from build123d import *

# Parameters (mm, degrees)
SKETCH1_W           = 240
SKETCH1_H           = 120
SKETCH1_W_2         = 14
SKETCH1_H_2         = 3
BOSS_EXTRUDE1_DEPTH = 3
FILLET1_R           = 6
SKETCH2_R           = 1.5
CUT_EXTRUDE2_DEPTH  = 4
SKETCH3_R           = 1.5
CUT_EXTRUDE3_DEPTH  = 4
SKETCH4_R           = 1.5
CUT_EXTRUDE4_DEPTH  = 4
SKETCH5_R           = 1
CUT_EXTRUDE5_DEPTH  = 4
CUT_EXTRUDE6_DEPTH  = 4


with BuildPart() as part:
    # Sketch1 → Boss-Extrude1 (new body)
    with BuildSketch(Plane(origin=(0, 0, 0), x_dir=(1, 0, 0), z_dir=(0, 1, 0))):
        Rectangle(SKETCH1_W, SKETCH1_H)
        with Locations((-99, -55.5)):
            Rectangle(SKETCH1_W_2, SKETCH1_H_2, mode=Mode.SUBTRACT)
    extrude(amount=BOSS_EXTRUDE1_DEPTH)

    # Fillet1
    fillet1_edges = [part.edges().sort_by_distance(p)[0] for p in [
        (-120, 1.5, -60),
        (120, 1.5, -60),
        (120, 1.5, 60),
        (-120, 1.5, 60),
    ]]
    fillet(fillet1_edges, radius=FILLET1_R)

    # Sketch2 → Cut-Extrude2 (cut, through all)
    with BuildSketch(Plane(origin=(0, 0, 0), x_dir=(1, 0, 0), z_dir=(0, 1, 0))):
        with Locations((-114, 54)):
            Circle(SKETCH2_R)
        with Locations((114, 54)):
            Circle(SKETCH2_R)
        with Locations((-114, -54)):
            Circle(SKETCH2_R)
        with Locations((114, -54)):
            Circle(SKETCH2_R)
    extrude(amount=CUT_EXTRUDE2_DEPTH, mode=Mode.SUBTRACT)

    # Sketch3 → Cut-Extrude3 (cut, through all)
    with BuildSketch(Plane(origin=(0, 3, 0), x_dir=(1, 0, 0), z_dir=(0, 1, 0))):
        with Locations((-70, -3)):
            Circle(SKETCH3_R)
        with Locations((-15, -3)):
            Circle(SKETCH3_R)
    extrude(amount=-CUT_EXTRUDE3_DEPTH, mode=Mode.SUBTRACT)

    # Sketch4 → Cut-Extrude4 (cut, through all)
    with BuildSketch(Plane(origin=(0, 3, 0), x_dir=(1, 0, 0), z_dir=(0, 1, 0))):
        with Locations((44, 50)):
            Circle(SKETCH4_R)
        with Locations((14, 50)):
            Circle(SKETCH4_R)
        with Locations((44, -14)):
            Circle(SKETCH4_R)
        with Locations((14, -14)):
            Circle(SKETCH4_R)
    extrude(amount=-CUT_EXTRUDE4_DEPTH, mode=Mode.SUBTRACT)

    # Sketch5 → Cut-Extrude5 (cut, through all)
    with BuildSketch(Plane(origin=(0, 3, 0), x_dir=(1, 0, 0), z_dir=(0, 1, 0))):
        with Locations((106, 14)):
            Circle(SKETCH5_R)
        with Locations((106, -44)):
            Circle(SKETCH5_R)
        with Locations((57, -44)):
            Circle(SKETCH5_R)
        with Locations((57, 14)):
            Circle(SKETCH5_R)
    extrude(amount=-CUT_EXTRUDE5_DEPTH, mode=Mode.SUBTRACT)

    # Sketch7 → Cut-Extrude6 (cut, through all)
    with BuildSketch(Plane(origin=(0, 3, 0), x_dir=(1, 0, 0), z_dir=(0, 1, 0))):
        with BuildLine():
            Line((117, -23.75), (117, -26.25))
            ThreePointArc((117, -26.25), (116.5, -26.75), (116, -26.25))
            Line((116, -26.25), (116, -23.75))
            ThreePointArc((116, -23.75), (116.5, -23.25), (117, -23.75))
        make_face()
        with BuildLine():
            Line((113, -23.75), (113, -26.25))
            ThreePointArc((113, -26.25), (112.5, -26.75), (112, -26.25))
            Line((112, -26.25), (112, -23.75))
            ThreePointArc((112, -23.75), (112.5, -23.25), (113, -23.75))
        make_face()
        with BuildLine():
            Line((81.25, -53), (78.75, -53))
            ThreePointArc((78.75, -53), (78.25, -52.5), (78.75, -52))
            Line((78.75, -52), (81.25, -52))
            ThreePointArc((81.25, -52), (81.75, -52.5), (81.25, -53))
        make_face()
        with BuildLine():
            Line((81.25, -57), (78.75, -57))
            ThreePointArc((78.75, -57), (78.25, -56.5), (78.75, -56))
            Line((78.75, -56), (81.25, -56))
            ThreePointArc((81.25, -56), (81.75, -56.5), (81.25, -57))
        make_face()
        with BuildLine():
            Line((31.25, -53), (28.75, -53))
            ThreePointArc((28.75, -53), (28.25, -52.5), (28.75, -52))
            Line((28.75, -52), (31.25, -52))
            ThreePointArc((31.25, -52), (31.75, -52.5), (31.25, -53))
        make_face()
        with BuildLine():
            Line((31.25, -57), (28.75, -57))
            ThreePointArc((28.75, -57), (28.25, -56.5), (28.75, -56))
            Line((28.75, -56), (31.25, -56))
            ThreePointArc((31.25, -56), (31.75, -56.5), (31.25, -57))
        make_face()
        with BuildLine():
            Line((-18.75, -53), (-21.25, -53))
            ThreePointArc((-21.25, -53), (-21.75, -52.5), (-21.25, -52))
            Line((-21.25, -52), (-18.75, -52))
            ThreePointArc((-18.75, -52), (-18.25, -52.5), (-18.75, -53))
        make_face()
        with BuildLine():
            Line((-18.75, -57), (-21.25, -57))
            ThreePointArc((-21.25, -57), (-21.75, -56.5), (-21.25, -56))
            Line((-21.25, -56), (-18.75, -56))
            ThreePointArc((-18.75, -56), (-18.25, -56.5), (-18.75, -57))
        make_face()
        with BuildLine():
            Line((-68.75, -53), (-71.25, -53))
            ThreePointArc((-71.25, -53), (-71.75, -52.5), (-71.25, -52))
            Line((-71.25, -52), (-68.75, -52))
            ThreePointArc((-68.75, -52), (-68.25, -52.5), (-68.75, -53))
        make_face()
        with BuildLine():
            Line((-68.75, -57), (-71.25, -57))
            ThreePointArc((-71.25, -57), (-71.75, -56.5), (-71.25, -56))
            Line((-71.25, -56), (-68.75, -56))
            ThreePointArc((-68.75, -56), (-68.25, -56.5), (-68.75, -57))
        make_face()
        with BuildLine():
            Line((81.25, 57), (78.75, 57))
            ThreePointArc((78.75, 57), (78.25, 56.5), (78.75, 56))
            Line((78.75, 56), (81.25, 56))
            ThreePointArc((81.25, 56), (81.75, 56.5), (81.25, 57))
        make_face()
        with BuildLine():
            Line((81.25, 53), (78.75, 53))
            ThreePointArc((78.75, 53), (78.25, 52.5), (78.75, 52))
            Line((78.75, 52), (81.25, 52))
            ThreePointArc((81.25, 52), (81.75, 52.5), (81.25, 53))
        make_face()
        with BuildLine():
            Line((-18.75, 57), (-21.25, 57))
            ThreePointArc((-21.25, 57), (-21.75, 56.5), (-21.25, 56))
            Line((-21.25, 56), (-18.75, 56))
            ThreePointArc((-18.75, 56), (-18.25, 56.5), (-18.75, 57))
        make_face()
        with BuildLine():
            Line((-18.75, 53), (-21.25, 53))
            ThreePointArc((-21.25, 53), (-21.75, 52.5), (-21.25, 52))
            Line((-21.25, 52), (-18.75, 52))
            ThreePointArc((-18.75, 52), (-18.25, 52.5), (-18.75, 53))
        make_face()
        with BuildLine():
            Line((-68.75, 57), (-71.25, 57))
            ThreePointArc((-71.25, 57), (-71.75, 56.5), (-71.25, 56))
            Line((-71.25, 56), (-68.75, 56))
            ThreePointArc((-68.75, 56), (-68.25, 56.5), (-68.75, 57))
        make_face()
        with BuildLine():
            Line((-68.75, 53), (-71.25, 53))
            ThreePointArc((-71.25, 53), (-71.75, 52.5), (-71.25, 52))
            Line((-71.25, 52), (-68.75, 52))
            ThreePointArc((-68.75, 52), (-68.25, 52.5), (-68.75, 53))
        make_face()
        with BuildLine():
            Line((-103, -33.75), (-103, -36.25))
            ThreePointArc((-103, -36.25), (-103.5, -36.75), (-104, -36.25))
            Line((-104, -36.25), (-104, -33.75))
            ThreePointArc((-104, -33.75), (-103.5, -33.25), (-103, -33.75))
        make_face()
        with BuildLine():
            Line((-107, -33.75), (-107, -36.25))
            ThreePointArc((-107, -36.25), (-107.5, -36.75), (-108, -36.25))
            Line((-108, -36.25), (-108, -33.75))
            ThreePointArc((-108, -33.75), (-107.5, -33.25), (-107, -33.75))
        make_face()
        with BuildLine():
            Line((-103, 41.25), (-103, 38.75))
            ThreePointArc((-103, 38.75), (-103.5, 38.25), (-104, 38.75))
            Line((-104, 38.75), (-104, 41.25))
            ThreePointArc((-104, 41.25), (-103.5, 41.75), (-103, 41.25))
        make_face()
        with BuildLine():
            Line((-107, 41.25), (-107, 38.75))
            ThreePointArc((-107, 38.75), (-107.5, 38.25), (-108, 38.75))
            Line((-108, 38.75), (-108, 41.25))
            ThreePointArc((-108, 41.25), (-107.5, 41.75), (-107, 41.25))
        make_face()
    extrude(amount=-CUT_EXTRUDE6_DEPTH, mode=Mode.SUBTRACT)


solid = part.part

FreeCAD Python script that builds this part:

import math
import FreeCAD as App
import Part
import Sketcher
from FreeCAD import Vector
Q = App.Units.Quantity


def edges_at(feature, points):
    """Names of the edges that pass closest to the given points."""
    edges = feature.Shape.Edges
    near = lambda p: min(range(len(edges)), key=lambda i: edges[i].distToShape(Part.Vertex(*p))[0])
    return sorted({f"Edge{near(p) + 1}" for p in points})

doc = App.newDocument("Part")
params = doc.addObject("Spreadsheet::Sheet", "Params")
for row, (alias, value) in enumerate([
    ("sketch1_width", "240 mm"),
    ("sketch1_width2", "14 mm"),
    ("sketch1_height", "120 mm"),
    ("sketch1_height2", "3 mm"),
    ("pad1_length", "3 mm"),
    ("fillet_radius", "6 mm"),
    ("sketch2_diameter", "3 mm"),
    ("sketch3_diameter", "3 mm"),
    ("sketch4_diameter", "3 mm"),
    ("sketch5_diameter", "2 mm"),
    ("sketch6_radius", "0.5 mm"),
    ("sketch6_width", "2.5 mm"),
], start=1):
    params.set(f"A{row}", alias)
    params.set(f"B{row}", "=" + value)
    params.setAlias(f"B{row}", alias)

body = doc.addObject("PartDesign::Body", "Body")

# Sketch on XZ plane
sketch1 = doc.addObject("Sketcher::SketchObject", "Sketch")
body.addObject(sketch1)
sketch1.AttachmentSupport = (doc.XZ_Plane, [""])
sketch1.MapMode = "FlatFace"
sketch1.addGeometry(Part.LineSegment(Vector(-120, -60, 0), Vector(-120, 60, 0)), False)
sketch1.addGeometry(Part.LineSegment(Vector(-120, 60, 0), Vector(120, 60, 0)), False)
sketch1.addGeometry(Part.LineSegment(Vector(120, 60, 0), Vector(120, -60, 0)), False)
sketch1.addGeometry(Part.LineSegment(Vector(120, -60, 0), Vector(-120, -60, 0)), False)
sketch1.addGeometry(Part.LineSegment(Vector(-92, 57, 0), Vector(-106, 57, 0)), False)
sketch1.addGeometry(Part.LineSegment(Vector(-106, 57, 0), Vector(-106, 54, 0)), False)
sketch1.addGeometry(Part.LineSegment(Vector(-106, 54, 0), Vector(-92, 54, 0)), False)
sketch1.addGeometry(Part.LineSegment(Vector(-92, 54, 0), Vector(-92, 57, 0)), False)
sketch1.addConstraint(Sketcher.Constraint("Coincident", 0, 2, 1, 1))
sketch1.addConstraint(Sketcher.Constraint("Coincident", 1, 2, 2, 1))
sketch1.addConstraint(Sketcher.Constraint("Coincident", 2, 2, 3, 1))
sketch1.addConstraint(Sketcher.Constraint("Coincident", 3, 2, 0, 1))
sketch1.addConstraint(Sketcher.Constraint("Coincident", 4, 2, 5, 1))
sketch1.addConstraint(Sketcher.Constraint("Coincident", 5, 2, 6, 1))
sketch1.addConstraint(Sketcher.Constraint("Coincident", 6, 2, 7, 1))
sketch1.addConstraint(Sketcher.Constraint("Coincident", 7, 2, 4, 1))
sketch1.addConstraint(Sketcher.Constraint("Vertical", 0))
sketch1.addConstraint(Sketcher.Constraint("Horizontal", 1))
sketch1.addConstraint(Sketcher.Constraint("Vertical", 2))
sketch1.addConstraint(Sketcher.Constraint("Horizontal", 3))
sketch1.addConstraint(Sketcher.Constraint("Horizontal", 4))
sketch1.addConstraint(Sketcher.Constraint("Vertical", 5))
sketch1.addConstraint(Sketcher.Constraint("Horizontal", 6))
sketch1.addConstraint(Sketcher.Constraint("Vertical", 7))
sketch1.addConstraint(Sketcher.Constraint("Symmetric", 0, 2, 2, 2, -1, 1))
sketch1.addConstraint(Sketcher.Constraint("DistanceX", 1, 1, 1, 2, Q("240 mm")))
sketch1.addConstraint(Sketcher.Constraint("DistanceX", 4, 2, 4, 1, Q("14 mm")))
sketch1.addConstraint(Sketcher.Constraint("DistanceY", 0, 1, 0, 2, Q("120 mm")))
sketch1.addConstraint(Sketcher.Constraint("DistanceY", 5, 2, 5, 1, Q("3 mm")))
sketch1.addConstraint(Sketcher.Constraint("DistanceX", 4, 2, -1, 1, Q("106 mm")))
sketch1.addConstraint(Sketcher.Constraint("DistanceY", -1, 1, 4, 2, Q("57 mm")))
sketch1.setExpression("Constraints[17]", "Params.sketch1_width")
sketch1.setExpression("Constraints[18]", "Params.sketch1_width2")
sketch1.setExpression("Constraints[19]", "Params.sketch1_height")
sketch1.setExpression("Constraints[20]", "Params.sketch1_height2")
pad1 = doc.addObject("PartDesign::Pad", "Pad")
body.addObject(pad1)
pad1.Profile = sketch1
pad1.setExpression("Length", "Params.pad1_length")
pad1.Reversed = True
doc.recompute()

fillet = doc.addObject("PartDesign::Fillet", "Fillet")
body.addObject(fillet)
fillet.Base = (pad1, edges_at(pad1, [
    (-120, 1.5, -60),
    (120, 1.5, -60),
    (120, 1.5, 60),
    (-120, 1.5, 60),
]))
fillet.setExpression("Radius", "Params.fillet_radius")

# Sketch on XZ plane
sketch2 = doc.addObject("Sketcher::SketchObject", "Sketch001")
body.addObject(sketch2)
sketch2.AttachmentSupport = (doc.XZ_Plane, [""])
sketch2.MapMode = "FlatFace"
sketch2.addGeometry(Part.Circle(Vector(-114, -54, 0), Vector(0, 0, 1), 1.5), False)
sketch2.addGeometry(Part.Circle(Vector(114, -54, 0), Vector(0, 0, 1), 1.5), False)
sketch2.addGeometry(Part.Circle(Vector(-114, 54, 0), Vector(0, 0, 1), 1.5), False)
sketch2.addGeometry(Part.Circle(Vector(114, 54, 0), Vector(0, 0, 1), 1.5), False)
sketch2.addConstraint(Sketcher.Constraint("Equal", 0, 1))
sketch2.addConstraint(Sketcher.Constraint("Equal", 1, 2))
sketch2.addConstraint(Sketcher.Constraint("Equal", 2, 3))
sketch2.addConstraint(Sketcher.Constraint("Symmetric", 1, 3, 2, 3, -1, 1))
sketch2.addConstraint(Sketcher.Constraint("Symmetric", 0, 3, 3, 3, -1, 1))
sketch2.addConstraint(Sketcher.Constraint("Symmetric", 0, 3, 1, 3, -2))
sketch2.addConstraint(Sketcher.Constraint("Diameter", 0, Q("3 mm")))
sketch2.addConstraint(Sketcher.Constraint("DistanceX", 0, 3, -1, 1, Q("114 mm")))
sketch2.addConstraint(Sketcher.Constraint("DistanceY", 0, 3, -1, 1, Q("54 mm")))
sketch2.setExpression("Constraints[6]", "Params.sketch2_diameter")
pocket1 = doc.addObject("PartDesign::Pocket", "Pocket")
body.addObject(pocket1)
pocket1.Profile = sketch2
pocket1.Type = "ThroughAll"

# Sketch on XZ plane
sketch3 = doc.addObject("Sketcher::SketchObject", "Sketch002")
body.addObject(sketch3)
sketch3.AttachmentSupport = (doc.XZ_Plane, [""])
sketch3.MapMode = "FlatFace"
sketch3.AttachmentOffset = App.Placement(Vector(0, 0, -3), App.Rotation())
sketch3.addGeometry(Part.Circle(Vector(-70, 3, 0), Vector(0, 0, 1), 1.5), False)
sketch3.addGeometry(Part.Circle(Vector(-15, 3, 0), Vector(0, 0, 1), 1.5), False)
sketch3.addConstraint(Sketcher.Constraint("Equal", 0, 1))
sketch3.addConstraint(Sketcher.Constraint("Horizontal", 0, 3, 1, 3))
sketch3.addConstraint(Sketcher.Constraint("Diameter", 0, Q("3 mm")))
sketch3.addConstraint(Sketcher.Constraint("DistanceX", 0, 3, -1, 1, Q("70 mm")))
sketch3.addConstraint(Sketcher.Constraint("DistanceY", -1, 1, 0, 3, Q("3 mm")))
sketch3.addConstraint(Sketcher.Constraint("DistanceX", 1, 3, -1, 1, Q("15 mm")))
sketch3.setExpression("Constraints[2]", "Params.sketch3_diameter")
pocket2 = doc.addObject("PartDesign::Pocket", "Pocket001")
body.addObject(pocket2)
pocket2.Profile = sketch3
pocket2.Type = "ThroughAll"
pocket2.Reversed = True

# Sketch on XZ plane
sketch4 = doc.addObject("Sketcher::SketchObject", "Sketch003")
body.addObject(sketch4)
sketch4.AttachmentSupport = (doc.XZ_Plane, [""])
sketch4.MapMode = "FlatFace"
sketch4.AttachmentOffset = App.Placement(Vector(0, 0, -3), App.Rotation())
sketch4.addGeometry(Part.Circle(Vector(44, -50, 0), Vector(0, 0, 1), 1.5), False)
sketch4.addGeometry(Part.Circle(Vector(14, -50, 0), Vector(0, 0, 1), 1.5), False)
sketch4.addGeometry(Part.Circle(Vector(44, 14, 0), Vector(0, 0, 1), 1.5), False)
sketch4.addGeometry(Part.Circle(Vector(14, 14, 0), Vector(0, 0, 1), 1.5), False)
sketch4.addConstraint(Sketcher.Constraint("Equal", 0, 1))
sketch4.addConstraint(Sketcher.Constraint("Equal", 1, 2))
sketch4.addConstraint(Sketcher.Constraint("Equal", 2, 3))
sketch4.addConstraint(Sketcher.Constraint("Horizontal", 0, 3, 1, 3))
sketch4.addConstraint(Sketcher.Constraint("Horizontal", 2, 3, 3, 3))
sketch4.addConstraint(Sketcher.Constraint("Vertical", 0, 3, 2, 3))
sketch4.addConstraint(Sketcher.Constraint("Vertical", 1, 3, 3, 3))
sketch4.addConstraint(Sketcher.Constraint("Diameter", 0, Q("3 mm")))
sketch4.addConstraint(Sketcher.Constraint("DistanceX", -1, 1, 0, 3, Q("44 mm")))
sketch4.addConstraint(Sketcher.Constraint("DistanceY", 0, 3, -1, 1, Q("50 mm")))
sketch4.addConstraint(Sketcher.Constraint("DistanceX", -1, 1, 1, 3, Q("14 mm")))
sketch4.addConstraint(Sketcher.Constraint("DistanceY", -1, 1, 2, 3, Q("14 mm")))
sketch4.setExpression("Constraints[7]", "Params.sketch4_diameter")
pocket3 = doc.addObject("PartDesign::Pocket", "Pocket002")
body.addObject(pocket3)
pocket3.Profile = sketch4
pocket3.Type = "ThroughAll"
pocket3.Reversed = True

# Sketch on XZ plane
sketch5 = doc.addObject("Sketcher::SketchObject", "Sketch004")
body.addObject(sketch5)
sketch5.AttachmentSupport = (doc.XZ_Plane, [""])
sketch5.MapMode = "FlatFace"
sketch5.AttachmentOffset = App.Placement(Vector(0, 0, -3), App.Rotation())
sketch5.addGeometry(Part.Circle(Vector(106, -14, 0), Vector(0, 0, 1), 1), False)
sketch5.addGeometry(Part.Circle(Vector(106, 44, 0), Vector(0, 0, 1), 1), False)
sketch5.addGeometry(Part.Circle(Vector(57, 44, 0), Vector(0, 0, 1), 1), False)
sketch5.addGeometry(Part.Circle(Vector(57, -14, 0), Vector(0, 0, 1), 1), False)
sketch5.addConstraint(Sketcher.Constraint("Equal", 0, 1))
sketch5.addConstraint(Sketcher.Constraint("Equal", 1, 2))
sketch5.addConstraint(Sketcher.Constraint("Equal", 2, 3))
sketch5.addConstraint(Sketcher.Constraint("Horizontal", 1, 3, 2, 3))
sketch5.addConstraint(Sketcher.Constraint("Horizontal", 0, 3, 3, 3))
sketch5.addConstraint(Sketcher.Constraint("Vertical", 0, 3, 1, 3))
sketch5.addConstraint(Sketcher.Constraint("Vertical", 2, 3, 3, 3))
sketch5.addConstraint(Sketcher.Constraint("Diameter", 0, Q("2 mm")))
sketch5.addConstraint(Sketcher.Constraint("DistanceX", -1, 1, 0, 3, Q("106 mm")))
sketch5.addConstraint(Sketcher.Constraint("DistanceY", 0, 3, -1, 1, Q("14 mm")))
sketch5.addConstraint(Sketcher.Constraint("DistanceY", -1, 1, 1, 3, Q("44 mm")))
sketch5.addConstraint(Sketcher.Constraint("DistanceX", -1, 1, 2, 3, Q("57 mm")))
sketch5.setExpression("Constraints[7]", "Params.sketch5_diameter")
pocket4 = doc.addObject("PartDesign::Pocket", "Pocket003")
body.addObject(pocket4)
pocket4.Profile = sketch5
pocket4.Type = "ThroughAll"
pocket4.Reversed = True

# Sketch on XZ plane
sketch6 = doc.addObject("Sketcher::SketchObject", "Sketch005")
body.addObject(sketch6)
sketch6.AttachmentSupport = (doc.XZ_Plane, [""])
sketch6.MapMode = "FlatFace"
sketch6.AttachmentOffset = App.Placement(Vector(0, 0, -3), App.Rotation())
sketch6.addGeometry(Part.LineSegment(Vector(117, 26.2, 0), Vector(117, 23.8, 0)), False)
sketch6.addGeometry(Part.ArcOfCircle(Part.Circle(Vector(116.5, 23.8, 0), Vector(0, 0, 1), 0.5), math.radians(180), math.radians(360)), False)
sketch6.addGeometry(Part.LineSegment(Vector(116, 23.8, 0), Vector(116, 26.2, 0)), False)
sketch6.addGeometry(Part.ArcOfCircle(Part.Circle(Vector(116.5, 26.2, 0), Vector(0, 0, 1), 0.5), math.radians(0), math.radians(180)), False)
sketch6.addGeometry(Part.LineSegment(Vector(113, 26.2, 0), Vector(113, 23.8, 0)), False)
sketch6.addGeometry(Part.ArcOfCircle(Part.Circle(Vector(112.5, 23.8, 0), Vector(0, 0, 1), 0.5), math.radians(180), math.radians(360)), False)
sketch6.addGeometry(Part.LineSegment(Vector(112, 23.8, 0), Vector(112, 26.2, 0)), False)
sketch6.addGeometry(Part.ArcOfCircle(Part.Circle(Vector(112.5, 26.2, 0), Vector(0, 0, 1), 0.5), math.radians(0), math.radians(180)), False)
sketch6.addGeometry(Part.LineSegment(Vector(78.8, 53, 0), Vector(81.2, 53, 0)), False)
sketch6.addGeometry(Part.ArcOfCircle(Part.Circle(Vector(81.2, 52.5, 0), Vector(0, 0, 1), 0.5), math.radians(-90), math.radians(90)), False)
sketch6.addGeometry(Part.LineSegment(Vector(81.2, 52, 0), Vector(78.8, 52, 0)), False)
sketch6.addGeometry(Part.ArcOfCircle(Part.Circle(Vector(78.8, 52.5, 0), Vector(0, 0, 1), 0.5), math.radians(90), math.radians(270)), False)
sketch6.addGeometry(Part.LineSegment(Vector(78.8, 57, 0), Vector(81.2, 57, 0)), False)
sketch6.addGeometry(Part.ArcOfCircle(Part.Circle(Vector(81.2, 56.5, 0), Vector(0, 0, 1), 0.5), math.radians(-90), math.radians(90)), False)
sketch6.addGeometry(Part.LineSegment(Vector(81.2, 56, 0), Vector(78.8, 56, 0)), False)
sketch6.addGeometry(Part.ArcOfCircle(Part.Circle(Vector(78.8, 56.5, 0), Vector(0, 0, 1), 0.5), math.radians(90), math.radians(270)), False)
sketch6.addGeometry(Part.LineSegment(Vector(28.8, 53, 0), Vector(31.2, 53, 0)), False)
sketch6.addGeometry(Part.ArcOfCircle(Part.Circle(Vector(31.2, 52.5, 0), Vector(0, 0, 1), 0.5), math.radians(-90), math.radians(90)), False)
sketch6.addGeometry(Part.LineSegment(Vector(31.2, 52, 0), Vector(28.8, 52, 0)), False)
sketch6.addGeometry(Part.ArcOfCircle(Part.Circle(Vector(28.8, 52.5, 0), Vector(0, 0, 1), 0.5), math.radians(90), math.radians(270)), False)
sketch6.addGeometry(Part.LineSegment(Vector(28.8, 57, 0), Vector(31.2, 57, 0)), False)
sketch6.addGeometry(Part.ArcOfCircle(Part.Circle(Vector(31.2, 56.5, 0), Vector(0, 0, 1), 0.5), math.radians(-90), math.radians(90)), False)
sketch6.addGeometry(Part.LineSegment(Vector(31.2, 56, 0), Vector(28.8, 56, 0)), False)
sketch6.addGeometry(Part.ArcOfCircle(Part.Circle(Vector(28.8, 56.5, 0), Vector(0, 0, 1), 0.5), math.radians(90), math.radians(270)), False)
sketch6.addGeometry(Part.LineSegment(Vector(-21.2, 53, 0), Vector(-18.8, 53, 0)), False)
sketch6.addGeometry(Part.ArcOfCircle(Part.Circle(Vector(-18.8, 52.5, 0), Vector(0, 0, 1), 0.5), math.radians(-90), math.radians(90)), False)
sketch6.addGeometry(Part.LineSegment(Vector(-18.8, 52, 0), Vector(-21.2, 52, 0)), False)
sketch6.addGeometry(Part.ArcOfCircle(Part.Circle(Vector(-21.2, 52.5, 0), Vector(0, 0, 1), 0.5), math.radians(90), math.radians(270)), False)
sketch6.addGeometry(Part.LineSegment(Vector(-21.2, 57, 0), Vector(-18.8, 57, 0)), False)
sketch6.addGeometry(Part.ArcOfCircle(Part.Circle(Vector(-18.8, 56.5, 0), Vector(0, 0, 1), 0.5), math.radians(-90), math.radians(90)), False)
sketch6.addGeometry(Part.LineSegment(Vector(-18.8, 56, 0), Vector(-21.2, 56, 0)), False)
sketch6.addGeometry(Part.ArcOfCircle(Part.Circle(Vector(-21.2, 56.5, 0), Vector(0, 0, 1), 0.5), math.radians(90), math.radians(270)), False)
sketch6.addGeometry(Part.LineSegment(Vector(-71.2, 53, 0), Vector(-68.8, 53, 0)), False)
sketch6.addGeometry(Part.ArcOfCircle(Part.Circle(Vector(-68.8, 52.5, 0), Vector(0, 0, 1), 0.5), math.radians(-90), math.radians(90)), False)
sketch6.addGeometry(Part.LineSegment(Vector(-68.8, 52, 0), Vector(-71.2, 52, 0)), False)
sketch6.addGeometry(Part.ArcOfCircle(Part.Circle(Vector(-71.2, 52.5, 0), Vector(0, 0, 1), 0.5), math.radians(90), math.radians(270)), False)
sketch6.addGeometry(Part.LineSegment(Vector(-71.2, 57, 0), Vector(-68.8, 57, 0)), False)
sketch6.addGeometry(Part.ArcOfCircle(Part.Circle(Vector(-68.8, 56.5, 0), Vector(0, 0, 1), 0.5), math.radians(-90), math.radians(90)), False)
sketch6.addGeometry(Part.LineSegment(Vector(-68.8, 56, 0), Vector(-71.2, 56, 0)), False)
sketch6.addGeometry(Part.ArcOfCircle(Part.Circle(Vector(-71.2, 56.5, 0), Vector(0, 0, 1), 0.5), math.radians(90), math.radians(270)), False)
sketch6.addGeometry(Part.LineSegment(Vector(81.2, -57, 0), Vector(78.8, -57, 0)), False)
sketch6.addGeometry(Part.ArcOfCircle(Part.Circle(Vector(78.8, -56.5, 0), Vector(0, 0, 1), 0.5), math.radians(90), math.radians(270)), False)
sketch6.addGeometry(Part.LineSegment(Vector(78.8, -56, 0), Vector(81.2, -56, 0)), False)
sketch6.addGeometry(Part.ArcOfCircle(Part.Circle(Vector(81.2, -56.5, 0), Vector(0, 0, 1), 0.5), math.radians(-90), math.radians(90)), False)
sketch6.addGeometry(Part.LineSegment(Vector(81.2, -53, 0), Vector(78.8, -53, 0)), False)
sketch6.addGeometry(Part.ArcOfCircle(Part.Circle(Vector(78.8, -52.5, 0), Vector(0, 0, 1), 0.5), math.radians(90), math.radians(270)), False)
sketch6.addGeometry(Part.LineSegment(Vector(78.8, -52, 0), Vector(81.2, -52, 0)), False)
sketch6.addGeometry(Part.ArcOfCircle(Part.Circle(Vector(81.2, -52.5, 0), Vector(0, 0, 1), 0.5), math.radians(-90), math.radians(90)), False)
sketch6.addGeometry(Part.LineSegment(Vector(-18.8, -57, 0), Vector(-21.2, -57, 0)), False)
sketch6.addGeometry(Part.ArcOfCircle(Part.Circle(Vector(-21.2, -56.5, 0), Vector(0, 0, 1), 0.5), math.radians(90), math.radians(270)), False)
sketch6.addGeometry(Part.LineSegment(Vector(-21.2, -56, 0), Vector(-18.8, -56, 0)), False)
sketch6.addGeometry(Part.ArcOfCircle(Part.Circle(Vector(-18.8, -56.5, 0), Vector(0, 0, 1), 0.5), math.radians(-90), math.radians(90)), False)
sketch6.addGeometry(Part.LineSegment(Vector(-18.8, -53, 0), Vector(-21.2, -53, 0)), False)
sketch6.addGeometry(Part.ArcOfCircle(Part.Circle(Vector(-21.2, -52.5, 0), Vector(0, 0, 1), 0.5), math.radians(90), math.radians(270)), False)
sketch6.addGeometry(Part.LineSegment(Vector(-21.2, -52, 0), Vector(-18.8, -52, 0)), False)
sketch6.addGeometry(Part.ArcOfCircle(Part.Circle(Vector(-18.8, -52.5, 0), Vector(0, 0, 1), 0.5), math.radians(-90), math.radians(90)), False)
sketch6.addGeometry(Part.LineSegment(Vector(-68.8, -57, 0), Vector(-71.2, -57, 0)), False)
sketch6.addGeometry(Part.ArcOfCircle(Part.Circle(Vector(-71.2, -56.5, 0), Vector(0, 0, 1), 0.5), math.radians(90), math.radians(270)), False)
sketch6.addGeometry(Part.LineSegment(Vector(-71.2, -56, 0), Vector(-68.8, -56, 0)), False)
sketch6.addGeometry(Part.ArcOfCircle(Part.Circle(Vector(-68.8, -56.5, 0), Vector(0, 0, 1), 0.5), math.radians(-90), math.radians(90)), False)
sketch6.addGeometry(Part.LineSegment(Vector(-68.8, -53, 0), Vector(-71.2, -53, 0)), False)
sketch6.addGeometry(Part.ArcOfCircle(Part.Circle(Vector(-71.2, -52.5, 0), Vector(0, 0, 1), 0.5), math.radians(90), math.radians(270)), False)
sketch6.addGeometry(Part.LineSegment(Vector(-71.2, -52, 0), Vector(-68.8, -52, 0)), False)
sketch6.addGeometry(Part.ArcOfCircle(Part.Circle(Vector(-68.8, -52.5, 0), Vector(0, 0, 1), 0.5), math.radians(-90), math.radians(90)), False)
sketch6.addGeometry(Part.LineSegment(Vector(-103, 36.2, 0), Vector(-103, 33.8, 0)), False)
sketch6.addGeometry(Part.ArcOfCircle(Part.Circle(Vector(-103.5, 33.8, 0), Vector(0, 0, 1), 0.5), math.radians(180), math.radians(360)), False)
sketch6.addGeometry(Part.LineSegment(Vector(-104, 33.8, 0), Vector(-104, 36.2, 0)), False)
sketch6.addGeometry(Part.ArcOfCircle(Part.Circle(Vector(-103.5, 36.2, 0), Vector(0, 0, 1), 0.5), math.radians(0), math.radians(180)), False)
sketch6.addGeometry(Part.LineSegment(Vector(-107, 36.2, 0), Vector(-107, 33.8, 0)), False)
sketch6.addGeometry(Part.ArcOfCircle(Part.Circle(Vector(-107.5, 33.8, 0), Vector(0, 0, 1), 0.5), math.radians(180), math.radians(360)), False)
sketch6.addGeometry(Part.LineSegment(Vector(-108, 33.8, 0), Vector(-108, 36.2, 0)), False)
sketch6.addGeometry(Part.ArcOfCircle(Part.Circle(Vector(-107.5, 36.2, 0), Vector(0, 0, 1), 0.5), math.radians(0), math.radians(180)), False)
sketch6.addGeometry(Part.LineSegment(Vector(-103, -38.8, 0), Vector(-103, -41.2, 0)), False)
sketch6.addGeometry(Part.ArcOfCircle(Part.Circle(Vector(-103.5, -41.2, 0), Vector(0, 0, 1), 0.5), math.radians(180), math.radians(360)), False)
sketch6.addGeometry(Part.LineSegment(Vector(-104, -41.2, 0), Vector(-104, -38.8, 0)), False)
sketch6.addGeometry(Part.ArcOfCircle(Part.Circle(Vector(-103.5, -38.8, 0), Vector(0, 0, 1), 0.5), math.radians(0), math.radians(180)), False)
sketch6.addGeometry(Part.LineSegment(Vector(-107, -38.8, 0), Vector(-107, -41.2, 0)), False)
sketch6.addGeometry(Part.ArcOfCircle(Part.Circle(Vector(-107.5, -41.2, 0), Vector(0, 0, 1), 0.5), math.radians(180), math.radians(360)), False)
sketch6.addGeometry(Part.LineSegment(Vector(-108, -41.2, 0), Vector(-108, -38.8, 0)), False)
sketch6.addGeometry(Part.ArcOfCircle(Part.Circle(Vector(-107.5, -38.8, 0), Vector(0, 0, 1), 0.5), math.radians(0), math.radians(180)), False)
sketch6.addConstraint(Sketcher.Constraint("Tangent", 0, 2, 1, 2))
sketch6.addConstraint(Sketcher.Constraint("Tangent", 1, 1, 2, 1))
sketch6.addConstraint(Sketcher.Constraint("Tangent", 2, 2, 3, 2))
sketch6.addConstraint(Sketcher.Constraint("Tangent", 3, 1, 0, 1))
sketch6.addConstraint(Sketcher.Constraint("Tangent", 4, 2, 5, 2))
sketch6.addConstraint(Sketcher.Constraint("Tangent", 5, 1, 6, 1))
sketch6.addConstraint(Sketcher.Constraint("Tangent", 6, 2, 7, 2))
sketch6.addConstraint(Sketcher.Constraint("Tangent", 7, 1, 4, 1))
sketch6.addConstraint(Sketcher.Constraint("Tangent", 8, 2, 9, 2))
sketch6.addConstraint(Sketcher.Constraint("Tangent", 9, 1, 10, 1))
sketch6.addConstraint(Sketcher.Constraint("Tangent", 10, 2, 11, 2))
sketch6.addConstraint(Sketcher.Constraint("Tangent", 11, 1, 8, 1))
sketch6.addConstraint(Sketcher.Constraint("Tangent", 12, 2, 13, 2))
sketch6.addConstraint(Sketcher.Constraint("Tangent", 13, 1, 14, 1))
sketch6.addConstraint(Sketcher.Constraint("Tangent", 14, 2, 15, 2))
sketch6.addConstraint(Sketcher.Constraint("Tangent", 15, 1, 12, 1))
sketch6.addConstraint(Sketcher.Constraint("Tangent", 16, 2, 17, 2))
sketch6.addConstraint(Sketcher.Constraint("Tangent", 17, 1, 18, 1))
sketch6.addConstraint(Sketcher.Constraint("Tangent", 18, 2, 19, 2))
sketch6.addConstraint(Sketcher.Constraint("Tangent", 19, 1, 16, 1))
sketch6.addConstraint(Sketcher.Constraint("Tangent", 20, 2, 21, 2))
sketch6.addConstraint(Sketcher.Constraint("Tangent", 21, 1, 22, 1))
sketch6.addConstraint(Sketcher.Constraint("Tangent", 22, 2, 23, 2))
sketch6.addConstraint(Sketcher.Constraint("Tangent", 23, 1, 20, 1))
sketch6.addConstraint(Sketcher.Constraint("Tangent", 24, 2, 25, 2))
sketch6.addConstraint(Sketcher.Constraint("Tangent", 25, 1, 26, 1))
sketch6.addConstraint(Sketcher.Constraint("Tangent", 26, 2, 27, 2))
sketch6.addConstraint(Sketcher.Constraint("Tangent", 27, 1, 24, 1))
sketch6.addConstraint(Sketcher.Constraint("Tangent", 28, 2, 29, 2))
sketch6.addConstraint(Sketcher.Constraint("Tangent", 29, 1, 30, 1))
sketch6.addConstraint(Sketcher.Constraint("Tangent", 30, 2, 31, 2))
sketch6.addConstraint(Sketcher.Constraint("Tangent", 31, 1, 28, 1))
sketch6.addConstraint(Sketcher.Constraint("Tangent", 32, 2, 33, 2))
sketch6.addConstraint(Sketcher.Constraint("Tangent", 33, 1, 34, 1))
sketch6.addConstraint(Sketcher.Constraint("Tangent", 34, 2, 35, 2))
sketch6.addConstraint(Sketcher.Constraint("Tangent", 35, 1, 32, 1))
sketch6.addConstraint(Sketcher.Constraint("Tangent", 36, 2, 37, 2))
sketch6.addConstraint(Sketcher.Constraint("Tangent", 37, 1, 38, 1))
sketch6.addConstraint(Sketcher.Constraint("Tangent", 38, 2, 39, 2))
sketch6.addConstraint(Sketcher.Constraint("Tangent", 39, 1, 36, 1))
sketch6.addConstraint(Sketcher.Constraint("Tangent", 40, 2, 41, 2))
sketch6.addConstraint(Sketcher.Constraint("Tangent", 41, 1, 42, 1))
sketch6.addConstraint(Sketcher.Constraint("Tangent", 42, 2, 43, 2))
sketch6.addConstraint(Sketcher.Constraint("Tangent", 43, 1, 40, 1))
sketch6.addConstraint(Sketcher.Constraint("Tangent", 44, 2, 45, 2))
sketch6.addConstraint(Sketcher.Constraint("Tangent", 45, 1, 46, 1))
sketch6.addConstraint(Sketcher.Constraint("Tangent", 46, 2, 47, 2))
sketch6.addConstraint(Sketcher.Constraint("Tangent", 47, 1, 44, 1))
sketch6.addConstraint(Sketcher.Constraint("Tangent", 48, 2, 49, 2))
sketch6.addConstraint(Sketcher.Constraint("Tangent", 49, 1, 50, 1))
sketch6.addConstraint(Sketcher.Constraint("Tangent", 50, 2, 51, 2))
sketch6.addConstraint(Sketcher.Constraint("Tangent", 51, 1, 48, 1))
sketch6.addConstraint(Sketcher.Constraint("Tangent", 52, 2, 53, 2))
sketch6.addConstraint(Sketcher.Constraint("Tangent", 53, 1, 54, 1))
sketch6.addConstraint(Sketcher.Constraint("Tangent", 54, 2, 55, 2))
sketch6.addConstraint(Sketcher.Constraint("Tangent", 55, 1, 52, 1))
sketch6.addConstraint(Sketcher.Constraint("Tangent", 56, 2, 57, 2))
sketch6.addConstraint(Sketcher.Constraint("Tangent", 57, 1, 58, 1))
sketch6.addConstraint(Sketcher.Constraint("Tangent", 58, 2, 59, 2))
sketch6.addConstraint(Sketcher.Constraint("Tangent", 59, 1, 56, 1))
sketch6.addConstraint(Sketcher.Constraint("Tangent", 60, 2, 61, 2))
sketch6.addConstraint(Sketcher.Constraint("Tangent", 61, 1, 62, 1))
sketch6.addConstraint(Sketcher.Constraint("Tangent", 62, 2, 63, 2))
sketch6.addConstraint(Sketcher.Constraint("Tangent", 63, 1, 60, 1))
sketch6.addConstraint(Sketcher.Constraint("Tangent", 64, 2, 65, 2))
sketch6.addConstraint(Sketcher.Constraint("Tangent", 65, 1, 66, 1))
sketch6.addConstraint(Sketcher.Constraint("Tangent", 66, 2, 67, 2))
sketch6.addConstraint(Sketcher.Constraint("Tangent", 67, 1, 64, 1))
sketch6.addConstraint(Sketcher.Constraint("Tangent", 68, 2, 69, 2))
sketch6.addConstraint(Sketcher.Constraint("Tangent", 69, 1, 70, 1))
sketch6.addConstraint(Sketcher.Constraint("Tangent", 70, 2, 71, 2))
sketch6.addConstraint(Sketcher.Constraint("Tangent", 71, 1, 68, 1))
sketch6.addConstraint(Sketcher.Constraint("Tangent", 72, 2, 73, 2))
sketch6.addConstraint(Sketcher.Constraint("Tangent", 73, 1, 74, 1))
sketch6.addConstraint(Sketcher.Constraint("Tangent", 74, 2, 75, 2))
sketch6.addConstraint(Sketcher.Constraint("Tangent", 75, 1, 72, 1))
sketch6.addConstraint(Sketcher.Constraint("Tangent", 76, 2, 77, 2))
sketch6.addConstraint(Sketcher.Constraint("Tangent", 77, 1, 78, 1))
sketch6.addConstraint(Sketcher.Constraint("Tangent", 78, 2, 79, 2))
sketch6.addConstraint(Sketcher.Constraint("Tangent", 79, 1, 76, 1))
sketch6.addConstraint(Sketcher.Constraint("Vertical", 0))
sketch6.addConstraint(Sketcher.Constraint("Vertical", 2))
sketch6.addConstraint(Sketcher.Constraint("Vertical", 4))
sketch6.addConstraint(Sketcher.Constraint("Vertical", 6))
sketch6.addConstraint(Sketcher.Constraint("Horizontal", 8))
sketch6.addConstraint(Sketcher.Constraint("Horizontal", 10))
sketch6.addConstraint(Sketcher.Constraint("Horizontal", 12))
sketch6.addConstraint(Sketcher.Constraint("Horizontal", 14))
sketch6.addConstraint(Sketcher.Constraint("Horizontal", 16))
sketch6.addConstraint(Sketcher.Constraint("Horizontal", 18))
sketch6.addConstraint(Sketcher.Constraint("Horizontal", 20))
sketch6.addConstraint(Sketcher.Constraint("Horizontal", 22))
sketch6.addConstraint(Sketcher.Constraint("Horizontal", 24))
sketch6.addConstraint(Sketcher.Constraint("Horizontal", 26))
sketch6.addConstraint(Sketcher.Constraint("Horizontal", 28))
sketch6.addConstraint(Sketcher.Constraint("Horizontal", 30))
sketch6.addConstraint(Sketcher.Constraint("Horizontal", 32))
sketch6.addConstraint(Sketcher.Constraint("Horizontal", 34))
sketch6.addConstraint(Sketcher.Constraint("Horizontal", 36))
sketch6.addConstraint(Sketcher.Constraint("Horizontal", 38))
sketch6.addConstraint(Sketcher.Constraint("Horizontal", 40))
sketch6.addConstraint(Sketcher.Constraint("Horizontal", 42))
sketch6.addConstraint(Sketcher.Constraint("Horizontal", 44))
sketch6.addConstraint(Sketcher.Constraint("Horizontal", 46))
sketch6.addConstraint(Sketcher.Constraint("Horizontal", 48))
sketch6.addConstraint(Sketcher.Constraint("Horizontal", 50))
sketch6.addConstraint(Sketcher.Constraint("Horizontal", 52))
sketch6.addConstraint(Sketcher.Constraint("Horizontal", 54))
sketch6.addConstraint(Sketcher.Constraint("Horizontal", 56))
sketch6.addConstraint(Sketcher.Constraint("Horizontal", 58))
sketch6.addConstraint(Sketcher.Constraint("Horizontal", 60))
sketch6.addConstraint(Sketcher.Constraint("Horizontal", 62))
sketch6.addConstraint(Sketcher.Constraint("Vertical", 64))
sketch6.addConstraint(Sketcher.Constraint("Vertical", 66))
sketch6.addConstraint(Sketcher.Constraint("Vertical", 68))
sketch6.addConstraint(Sketcher.Constraint("Vertical", 70))
sketch6.addConstraint(Sketcher.Constraint("Vertical", 72))
sketch6.addConstraint(Sketcher.Constraint("Vertical", 74))
sketch6.addConstraint(Sketcher.Constraint("Vertical", 76))
sketch6.addConstraint(Sketcher.Constraint("Vertical", 78))
sketch6.addConstraint(Sketcher.Constraint("Equal", 3, 5))
sketch6.addConstraint(Sketcher.Constraint("Equal", 7, 9))
sketch6.addConstraint(Sketcher.Constraint("Equal", 11, 13))
sketch6.addConstraint(Sketcher.Constraint("Equal", 15, 17))
sketch6.addConstraint(Sketcher.Constraint("Equal", 19, 21))
sketch6.addConstraint(Sketcher.Constraint("Equal", 23, 25))
sketch6.addConstraint(Sketcher.Constraint("Equal", 27, 29))
sketch6.addConstraint(Sketcher.Constraint("Equal", 31, 33))
sketch6.addConstraint(Sketcher.Constraint("Equal", 35, 37))
sketch6.addConstraint(Sketcher.Constraint("Equal", 39, 41))
sketch6.addConstraint(Sketcher.Constraint("Equal", 43, 45))
sketch6.addConstraint(Sketcher.Constraint("Equal", 47, 49))
sketch6.addConstraint(Sketcher.Constraint("Equal", 51, 53))
sketch6.addConstraint(Sketcher.Constraint("Equal", 55, 57))
sketch6.addConstraint(Sketcher.Constraint("Equal", 59, 61))
sketch6.addConstraint(Sketcher.Constraint("Equal", 63, 65))
sketch6.addConstraint(Sketcher.Constraint("Equal", 67, 69))
sketch6.addConstraint(Sketcher.Constraint("Equal", 71, 73))
sketch6.addConstraint(Sketcher.Constraint("Equal", 75, 77))
sketch6.addConstraint(Sketcher.Constraint("Symmetric", 15, 3, 41, 3, -1))
sketch6.addConstraint(Sketcher.Constraint("Symmetric", 11, 3, 45, 3, -1))
sketch6.addConstraint(Sketcher.Constraint("Symmetric", 31, 3, 49, 3, -1))
sketch6.addConstraint(Sketcher.Constraint("Symmetric", 27, 3, 53, 3, -1))
sketch6.addConstraint(Sketcher.Constraint("Symmetric", 39, 3, 57, 3, -1))
sketch6.addConstraint(Sketcher.Constraint("Symmetric", 35, 3, 61, 3, -1))
sketch6.addConstraint(Sketcher.Constraint("Horizontal", 1, 3, 5, 3))
sketch6.addConstraint(Sketcher.Constraint("Horizontal", 3, 3, 7, 3))
sketch6.addConstraint(Sketcher.Constraint("Horizontal", 11, 3, 17, 3))
sketch6.addConstraint(Sketcher.Constraint("Horizontal", 15, 3, 21, 3))
sketch6.addConstraint(Sketcher.Constraint("Horizontal", 19, 3, 25, 3))
sketch6.addConstraint(Sketcher.Constraint("Horizontal", 23, 3, 29, 3))
sketch6.addConstraint(Sketcher.Constraint("Horizontal", 27, 3, 33, 3))
sketch6.addConstraint(Sketcher.Constraint("Horizontal", 31, 3, 37, 3))
sketch6.addConstraint(Sketcher.Constraint("Horizontal", 65, 3, 69, 3))
sketch6.addConstraint(Sketcher.Constraint("Horizontal", 67, 3, 71, 3))
sketch6.addConstraint(Sketcher.Constraint("Horizontal", 73, 3, 77, 3))
sketch6.addConstraint(Sketcher.Constraint("Horizontal", 75, 3, 79, 3))
sketch6.addConstraint(Sketcher.Constraint("Vertical", 9, 3, 13, 3))
sketch6.addConstraint(Sketcher.Constraint("Vertical", 11, 3, 15, 3))
sketch6.addConstraint(Sketcher.Constraint("Vertical", 17, 3, 21, 3))
sketch6.addConstraint(Sketcher.Constraint("Vertical", 19, 3, 23, 3))
sketch6.addConstraint(Sketcher.Constraint("Vertical", 25, 3, 29, 3))
sketch6.addConstraint(Sketcher.Constraint("Vertical", 27, 3, 31, 3))
sketch6.addConstraint(Sketcher.Constraint("Vertical", 33, 3, 37, 3))
sketch6.addConstraint(Sketcher.Constraint("Vertical", 35, 3, 39, 3))
sketch6.addConstraint(Sketcher.Constraint("Vertical", 13, 3, 43, 3))
sketch6.addConstraint(Sketcher.Constraint("Vertical", 43, 3, 47, 3))
sketch6.addConstraint(Sketcher.Constraint("Vertical", 29, 3, 51, 3))
sketch6.addConstraint(Sketcher.Constraint("Vertical", 51, 3, 55, 3))
sketch6.addConstraint(Sketcher.Constraint("Vertical", 37, 3, 59, 3))
sketch6.addConstraint(Sketcher.Constraint("Vertical", 59, 3, 63, 3))
sketch6.addConstraint(Sketcher.Constraint("Vertical", 67, 3, 73, 3))
sketch6.addConstraint(Sketcher.Constraint("Vertical", 71, 3, 77, 3))
sketch6.addConstraint(Sketcher.Constraint("Equal", 14, 16))
sketch6.addConstraint(Sketcher.Constraint("Equal", 22, 24))
sketch6.addConstraint(Sketcher.Constraint("Equal", 30, 32))
sketch6.addConstraint(Sketcher.Constraint("Equal", 62, 0))
sketch6.addConstraint(Sketcher.Constraint("Equal", 6, 64))
sketch6.addConstraint(Sketcher.Constraint("Equal", 70, 72))
sketch6.addConstraint(Sketcher.Constraint("Radius", 1, Q("0.5 mm")))
sketch6.addConstraint(Sketcher.Constraint("DistanceX", 8, 1, 8, 2, Q("2.5 mm")))
sketch6.addConstraint(Sketcher.Constraint("DistanceX", -1, 1, 0, 2, Q("117 mm")))
sketch6.addConstraint(Sketcher.Constraint("DistanceX", -1, 1, 4, 2, Q("113 mm")))
sketch6.addConstraint(Sketcher.Constraint("DistanceY", -1, 1, 8, 2, Q("53 mm")))
sketch6.addConstraint(Sketcher.Constraint("DistanceY", -1, 1, 12, 2, Q("57 mm")))
sketch6.addConstraint(Sketcher.Constraint("DistanceX", 64, 2, -1, 1, Q("103 mm")))
sketch6.addConstraint(Sketcher.Constraint("DistanceX", 68, 2, -1, 1, Q("107 mm")))
sketch6.addConstraint(Sketcher.Constraint("DistanceY", -1, 1, 1, 3, Q("23.75 mm")))
sketch6.addConstraint(Sketcher.Constraint("DistanceX", -1, 1, 9, 3, Q("81.25 mm")))
sketch6.addConstraint(Sketcher.Constraint("DistanceX", -1, 1, 17, 3, Q("31.25 mm")))
sketch6.addConstraint(Sketcher.Constraint("DistanceX", 25, 3, -1, 1, Q("18.75 mm")))
sketch6.addConstraint(Sketcher.Constraint("DistanceX", 33, 3, -1, 1, Q("68.75 mm")))
sketch6.addConstraint(Sketcher.Constraint("DistanceY", -1, 1, 65, 3, Q("33.75 mm")))
sketch6.addConstraint(Sketcher.Constraint("DistanceY", 73, 3, -1, 1, Q("41.25 mm")))
sketch6.setExpression("Constraints[179]", "Params.sketch6_radius")
sketch6.setExpression("Constraints[180]", "Params.sketch6_width")
pocket5 = doc.addObject("PartDesign::Pocket", "Pocket004")
body.addObject(pocket5)
pocket5.Profile = sketch6
pocket5.Type = "ThroughAll"
pocket5.Reversed = True

doc.recompute()
